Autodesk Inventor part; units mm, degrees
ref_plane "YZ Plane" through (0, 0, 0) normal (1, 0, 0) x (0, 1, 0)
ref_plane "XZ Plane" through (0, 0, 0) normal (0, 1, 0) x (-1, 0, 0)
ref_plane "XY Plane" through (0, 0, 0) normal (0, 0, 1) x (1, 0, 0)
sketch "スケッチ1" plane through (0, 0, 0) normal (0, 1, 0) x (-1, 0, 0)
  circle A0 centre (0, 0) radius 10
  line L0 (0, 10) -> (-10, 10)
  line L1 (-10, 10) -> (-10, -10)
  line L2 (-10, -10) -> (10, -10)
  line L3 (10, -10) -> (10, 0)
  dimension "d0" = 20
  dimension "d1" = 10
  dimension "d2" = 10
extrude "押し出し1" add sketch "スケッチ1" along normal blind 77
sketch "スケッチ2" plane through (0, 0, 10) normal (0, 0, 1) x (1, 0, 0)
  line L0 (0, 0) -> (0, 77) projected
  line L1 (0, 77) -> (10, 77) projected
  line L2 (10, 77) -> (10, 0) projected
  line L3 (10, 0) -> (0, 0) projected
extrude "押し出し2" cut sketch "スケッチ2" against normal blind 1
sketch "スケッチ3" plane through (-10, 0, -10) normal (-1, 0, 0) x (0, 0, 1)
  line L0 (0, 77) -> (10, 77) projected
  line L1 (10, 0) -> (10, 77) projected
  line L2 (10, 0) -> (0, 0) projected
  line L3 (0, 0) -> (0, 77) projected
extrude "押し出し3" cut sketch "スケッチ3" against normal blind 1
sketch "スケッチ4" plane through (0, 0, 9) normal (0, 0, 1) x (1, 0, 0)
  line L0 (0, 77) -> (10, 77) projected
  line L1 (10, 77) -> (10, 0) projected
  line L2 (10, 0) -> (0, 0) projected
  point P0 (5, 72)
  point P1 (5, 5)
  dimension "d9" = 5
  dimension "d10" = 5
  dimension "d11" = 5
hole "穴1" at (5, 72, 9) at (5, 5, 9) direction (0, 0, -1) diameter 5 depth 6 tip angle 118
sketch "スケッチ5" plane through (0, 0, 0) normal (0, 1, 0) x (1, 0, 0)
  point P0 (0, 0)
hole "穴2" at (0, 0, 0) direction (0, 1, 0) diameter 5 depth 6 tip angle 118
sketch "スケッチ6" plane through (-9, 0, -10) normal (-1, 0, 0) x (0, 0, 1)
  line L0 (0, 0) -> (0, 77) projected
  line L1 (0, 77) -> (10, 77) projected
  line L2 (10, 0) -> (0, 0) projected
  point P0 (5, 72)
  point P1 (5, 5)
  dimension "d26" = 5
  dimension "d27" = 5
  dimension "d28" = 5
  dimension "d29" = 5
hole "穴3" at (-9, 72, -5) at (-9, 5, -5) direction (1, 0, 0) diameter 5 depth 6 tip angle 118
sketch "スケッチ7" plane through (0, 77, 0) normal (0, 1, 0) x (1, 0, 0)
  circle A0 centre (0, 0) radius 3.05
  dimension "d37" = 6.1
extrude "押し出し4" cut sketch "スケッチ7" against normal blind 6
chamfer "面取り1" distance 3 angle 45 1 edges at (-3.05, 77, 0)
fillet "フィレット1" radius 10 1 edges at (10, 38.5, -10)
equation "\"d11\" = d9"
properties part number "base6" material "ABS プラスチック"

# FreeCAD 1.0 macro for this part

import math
import FreeCAD as App
import Part
import Sketcher
from FreeCAD import Vector


def edges_at(feature, points):
    """Names of the edges that pass closest to the given points."""
    edges = feature.Shape.Edges
    near = lambda p: min(range(len(edges)), key=lambda i: edges[i].distToShape(Part.Vertex(*p))[0])
    return sorted({f"Edge{near(p) + 1}" for p in points})

doc = App.newDocument("Part")
body = doc.addObject("PartDesign::Body", "Body")

# Sketch on XZ plane
sketch1 = body.newObject("Sketcher::SketchObject", "Sketch")
sketch1.AttachmentSupport = (doc.getObject("XZ_Plane"), [""])
sketch1.MapMode = "FlatFace"
sketch1.addGeometry([
    Part.ArcOfCircle(Part.Circle(Vector(0, 0, 0), Vector(0, 0, 1), 10), math.radians(90), math.radians(180)),  # 0
    Part.LineSegment(Vector(0, 10, 0), Vector(10, 10, 0)),  # 1
    Part.LineSegment(Vector(10, 10, 0), Vector(10, -10, 0)),  # 2
    Part.LineSegment(Vector(10, -10, 0), Vector(-10, -10, 0)),  # 3
    Part.LineSegment(Vector(-10, -10, 0), Vector(-10, 0, 0)),  # 4
], False)
sketch1.addConstraint([
    Sketcher.Constraint("Tangent", 0, 1, 1, 1),
    Sketcher.Constraint("Coincident", 1, 2, 2, 1),
    Sketcher.Constraint("Coincident", 2, 2, 3, 1),
    Sketcher.Constraint("Coincident", 3, 2, 4, 1),
    Sketcher.Constraint("Tangent", 4, 2, 0, 2),
    Sketcher.Constraint("Horizontal", 1),
    Sketcher.Constraint("Vertical", 2),
    Sketcher.Constraint("Horizontal", 3),
    Sketcher.Constraint("Vertical", 4),
    Sketcher.Constraint("Coincident", 0, 3, -1, 1),
    Sketcher.Constraint("Symmetric", 1, 2, 3, 2, -1, 1),
    Sketcher.Constraint("Radius", 0, 10.0),
])
pad1 = body.newObject("PartDesign::Pad", "Pad")
pad1.Profile = sketch1
pad1.Length = 77
pad1.Reversed = True

# Sketch on XY plane
sketch2 = body.newObject("Sketcher::SketchObject", "Sketch001")
sketch2.AttachmentSupport = (doc.getObject("XY_Plane"), [""])
sketch2.MapMode = "FlatFace"
sketch2.AttachmentOffset = App.Placement(Vector(0, 0, 10), App.Rotation())
sketch2.addGeometry([
    Part.LineSegment(Vector(0, 77, 0), Vector(0, 0, 0)),
    Part.LineSegment(Vector(0, 0, 0), Vector(10, 0, 0)),
    Part.LineSegment(Vector(10, 0, 0), Vector(10, 77, 0)),
    Part.LineSegment(Vector(10, 77, 0), Vector(0, 77, 0)),
], False)
sketch2.addConstraint([
    Sketcher.Constraint("Coincident", 0, 2, 1, 1),
    Sketcher.Constraint("Coincident", 1, 2, 2, 1),
    Sketcher.Constraint("Coincident", 2, 2, 3, 1),
    Sketcher.Constraint("Coincident", 3, 2, 0, 1),
    Sketcher.Constraint("Vertical", 0),
    Sketcher.Constraint("Horizontal", 1),
    Sketcher.Constraint("Vertical", 2),
    Sketcher.Constraint("Horizontal", 3),
    Sketcher.Constraint("Coincident", 0, 2, -1, 1),
    Sketcher.Constraint("DistanceX", 1, 1, 1, 2, 10.0),
    Sketcher.Constraint("DistanceY", 0, 2, 0, 1, 77.0),
])
pocket1 = body.newObject("PartDesign::Pocket", "Pocket")
pocket1.Profile = sketch2
pocket1.Length = 1

# Sketch on YZ plane
sketch3 = body.newObject("Sketcher::SketchObject", "Sketch002")
sketch3.AttachmentSupport = (doc.getObject("YZ_Plane"), [""])
sketch3.MapMode = "FlatFace"
sketch3.AttachmentOffset = App.Placement(Vector(0, 0, -10), App.Rotation())
sketch3.addGeometry([
    Part.LineSegment(Vector(77, 0, 0), Vector(77, -10, 0)),
    Part.LineSegment(Vector(77, -10, 0), Vector(0, -10, 0)),
    Part.LineSegment(Vector(0, -10, 0), Vector(0, 0, 0)),
    Part.LineSegment(Vector(0, 0, 0), Vector(77, 0, 0)),
], False)
sketch3.addConstraint([
    Sketcher.Constraint("Coincident", 0, 2, 1, 1),
    Sketcher.Constraint("Coincident", 1, 2, 2, 1),
    Sketcher.Constraint("Coincident", 2, 2, 3, 1),
    Sketcher.Constraint("Coincident", 3, 2, 0, 1),
    Sketcher.Constraint("Vertical", 0),
    Sketcher.Constraint("Horizontal", 1),
    Sketcher.Constraint("Vertical", 2),
    Sketcher.Constraint("Horizontal", 3),
    Sketcher.Constraint("Coincident", 2, 2, -1, 1),
    Sketcher.Constraint("DistanceX", 1, 2, 1, 1, 77.0),
    Sketcher.Constraint("DistanceY", 0, 2, 0, 1, 10.0),
])
pocket2 = body.newObject("PartDesign::Pocket", "Pocket001")
pocket2.Profile = sketch3
pocket2.Length = 1
pocket2.Reversed = True

# Sketch on XY plane
sketch4 = body.newObject("Sketcher::SketchObject", "Sketch003")
sketch4.AttachmentSupport = (doc.getObject("XY_Plane"), [""])
sketch4.MapMode = "FlatFace"
sketch4.AttachmentOffset = App.Placement(Vector(0, 0, 9), App.Rotation())
sketch4.addGeometry([
    Part.Circle(Vector(5, 72, 0), Vector(0, 0, 1), 2.5),
    Part.Circle(Vector(5, 5, 0), Vector(0, 0, 1), 2.5),
], False)
sketch4.addConstraint([
    Sketcher.Constraint("Equal", 0, 1),
    Sketcher.Constraint("Vertical", 0, 3, 1, 3),
    Sketcher.Constraint("Diameter", 0, 5.0),
    Sketcher.Constraint("DistanceX", -1, 1, 0, 3, 5.0),
    Sketcher.Constraint("DistanceY", -1, 1, 0, 3, 72.0),
    Sketcher.Constraint("DistanceY", -1, 1, 1, 3, 5.0),
])
doc.recompute()
hole = body.newObject("PartDesign::Hole", "Hole")
hole.Profile = sketch4
hole.ThreadType = "None"
hole.Diameter = 5
hole.DepthType = "Dimension"
hole.Depth = 6
hole.DrillPoint = "Angled"
hole.DrillPointAngle = 118

# Sketch on XZ plane
sketch5 = body.newObject("Sketcher::SketchObject", "Sketch004")
sketch5.AttachmentSupport = (doc.getObject("XZ_Plane"), [""])
sketch5.MapMode = "FlatFace"
sketch5.addGeometry(Part.Circle(Vector(0, 0, 0), Vector(0, 0, 1), 2.5), False)
sketch5.addConstraint([
    Sketcher.Constraint("Coincident", 0, 3, -1, 1),
    Sketcher.Constraint("Diameter", 0, 5.0),
])
doc.recompute()
hole2 = body.newObject("PartDesign::Hole", "Hole001")
hole2.Profile = sketch5
hole2.ThreadType = "None"
hole2.Diameter = 5
hole2.DepthType = "Dimension"
hole2.Depth = 6
hole2.DrillPoint = "Angled"
hole2.DrillPointAngle = 118

# Sketch on YZ plane
sketch6 = body.newObject("Sketcher::SketchObject", "Sketch005")
sketch6.AttachmentSupport = (doc.getObject("YZ_Plane"), [""])
sketch6.MapMode = "FlatFace"
sketch6.AttachmentOffset = App.Placement(Vector(0, 0, -9), App.Rotation())
sketch6.addGeometry([
    Part.Circle(Vector(72, -5, 0), Vector(0, 0, 1), 2.5),
    Part.Circle(Vector(5, -5, 0), Vector(0, 0, 1), 2.5),
], False)
sketch6.addConstraint([
    Sketcher.Constraint("Equal", 0, 1),
    Sketcher.Constraint("Horizontal", 0, 3, 1, 3),
    Sketcher.Constraint("Diameter", 0, 5.0),
    Sketcher.Constraint("DistanceX", -1, 1, 0, 3, 72.0),
    Sketcher.Constraint("DistanceY", 0, 3, -1, 1, 5.0),
    Sketcher.Constraint("DistanceX", -1, 1, 1, 3, 5.0),
])
doc.recompute()
hole3 = body.newObject("PartDesign::Hole", "Hole002")
hole3.Profile = sketch6
hole3.ThreadType = "None"
hole3.Diameter = 5
hole3.DepthType = "Dimension"
hole3.Depth = 6
hole3.DrillPoint = "Angled"
hole3.DrillPointAngle = 118
hole3.Reversed = True

# Sketch on XZ plane
sketch7 = body.newObject("Sketcher::SketchObject", "Sketch006")
sketch7.AttachmentSupport = (doc.getObject("XZ_Plane"), [""])
sketch7.MapMode = "FlatFace"
sketch7.AttachmentOffset = App.Placement(Vector(0, 0, -77), App.Rotation())
sketch7.addGeometry(Part.Circle(Vector(0, 0, 0), Vector(0, 0, 1), 3.05), False)
sketch7.addConstraint([
    Sketcher.Constraint("Coincident", 0, 3, -1, 1),
    Sketcher.Constraint("Diameter", 0, 6.1),
])
pocket3 = body.newObject("PartDesign::Pocket", "Pocket002")
pocket3.Profile = sketch7
pocket3.Length = 6
pocket3.Reversed = True
doc.recompute()

chamfer = body.newObject("PartDesign::Chamfer", "Chamfer")
chamfer.Base = (pocket3, edges_at(pocket3, [(-3.05, 77, 0)]))
chamfer.Size = 3
doc.recompute()

fillet = body.newObject("PartDesign::Fillet", "Fillet")
fillet.Base = (chamfer, edges_at(chamfer, [(10, 38.5, -10)]))
fillet.Radius = 10

doc.recompute()
